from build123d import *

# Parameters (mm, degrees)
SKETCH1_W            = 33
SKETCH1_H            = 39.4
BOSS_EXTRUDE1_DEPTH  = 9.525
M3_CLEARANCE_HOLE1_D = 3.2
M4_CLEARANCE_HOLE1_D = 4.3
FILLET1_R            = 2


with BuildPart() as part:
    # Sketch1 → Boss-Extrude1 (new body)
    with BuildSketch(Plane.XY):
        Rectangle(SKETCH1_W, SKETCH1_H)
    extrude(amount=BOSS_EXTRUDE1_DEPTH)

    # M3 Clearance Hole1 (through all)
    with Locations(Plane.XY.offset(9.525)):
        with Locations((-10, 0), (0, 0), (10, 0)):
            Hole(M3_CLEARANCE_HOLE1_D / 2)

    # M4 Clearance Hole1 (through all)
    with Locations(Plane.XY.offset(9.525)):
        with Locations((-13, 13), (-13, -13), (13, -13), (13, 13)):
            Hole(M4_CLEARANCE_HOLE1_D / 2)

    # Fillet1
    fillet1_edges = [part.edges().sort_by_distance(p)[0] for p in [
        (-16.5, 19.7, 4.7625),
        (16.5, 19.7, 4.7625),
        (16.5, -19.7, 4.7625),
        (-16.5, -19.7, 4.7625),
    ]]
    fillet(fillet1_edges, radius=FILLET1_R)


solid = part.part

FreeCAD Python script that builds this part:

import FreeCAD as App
import Part
import Sketcher

V = App.Vector
Q = App.Units.Quantity


def edges_at(feature, points):
    """Names of the edges that pass closest to the given points."""
    edges = feature.Shape.Edges
    near = lambda p: min(range(len(edges)), key=lambda i: edges[i].distToShape(Part.Vertex(*p))[0])
    return sorted({f"Edge{near(p) + 1}" for p in points})

doc = App.newDocument("Part")
body = doc.addObject("PartDesign::Body", "Body")

sketch1 = body.newObject("Sketcher::SketchObject", "Sketch")
sketch1.AttachmentSupport = (doc.getObject("XY_Plane"), [""])
sketch1.MapMode = "FlatFace"
sketch1.addGeometry([
    Part.LineSegment(V(-16.5, 19.7, 0), V(-16.5, -19.7, 0)),
    Part.LineSegment(V(-16.5, -19.7, 0), V(16.5, -19.7, 0)),
    Part.LineSegment(V(16.5, -19.7, 0), V(16.5, 19.7, 0)),
    Part.LineSegment(V(16.5, 19.7, 0), V(-16.5, 19.7, 0)),
], False)
sketch1.addConstraint([
    Sketcher.Constraint("Coincident", 0, 2, 1, 1),
    Sketcher.Constraint("Coincident", 1, 2, 2, 1),
    Sketcher.Constraint("Coincident", 2, 2, 3, 1),
    Sketcher.Constraint("Coincident", 3, 2, 0, 1),
    Sketcher.Constraint("Vertical", 0),
    Sketcher.Constraint("Horizontal", 1),
    Sketcher.Constraint("Vertical", 2),
    Sketcher.Constraint("Horizontal", 3),
    Sketcher.Constraint("Symmetric", 0, 2, 2, 2, -1, 1),
    Sketcher.Constraint("DistanceX", 1, 1, 1, 2, Q("33 mm")),
    Sketcher.Constraint("DistanceY", 0, 2, 0, 1, Q("39.4 mm")),
])
pad1 = body.newObject("PartDesign::Pad", "Pad")
pad1.Profile = sketch1
pad1.Length = 9.525

sketch2 = body.newObject("Sketcher::SketchObject", "Sketch001")
sketch2.AttachmentSupport = (doc.getObject("XY_Plane"), [""])
sketch2.MapMode = "FlatFace"
sketch2.AttachmentOffset = App.Placement(V(0, 0, 9.525), App.Rotation())
sketch2.addGeometry([
    Part.Circle(V(-10, 0, 0), V(0, 0, 1), 1.6),
    Part.Circle(V(0, 0, 0), V(0, 0, 1), 1.6),
    Part.Circle(V(10, 0, 0), V(0, 0, 1), 1.6),
], False)
sketch2.addConstraint([
    Sketcher.Constraint("Coincident", 1, 3, -1, 1),
    Sketcher.Constraint("Equal", 0, 1),
    Sketcher.Constraint("Equal", 1, 2),
    Sketcher.Constraint("Symmetric", 0, 3, 2, 3, -1, 1),
    Sketcher.Constraint("PointOnObject", 0, 3, -1),
    Sketcher.Constraint("Diameter", 0, Q("3.2 mm")),
    Sketcher.Constraint("DistanceX", 0, 3, -1, 1, Q("10 mm")),
])
doc.recompute()
hole = body.newObject("PartDesign::Hole", "Hole")
hole.Profile = sketch2
hole.ThreadType = "None"
hole.Diameter = 3.2
hole.DepthType = "ThroughAll"

sketch3 = body.newObject("Sketcher::SketchObject", "Sketch002")
sketch3.AttachmentSupport = (doc.getObject("XY_Plane"), [""])
sketch3.MapMode = "FlatFace"
sketch3.AttachmentOffset = App.Placement(V(0, 0, 9.525), App.Rotation())
sketch3.addGeometry([
    Part.Circle(V(-13, 13, 0), V(0, 0, 1), 2.15),
    Part.Circle(V(-13, -13, 0), V(0, 0, 1), 2.15),
    Part.Circle(V(13, -13, 0), V(0, 0, 1), 2.15),
    Part.Circle(V(13, 13, 0), V(0, 0, 1), 2.15),
], False)
sketch3.addConstraint([
    Sketcher.Constraint("Equal", 0, 1),
    Sketcher.Constraint("Equal", 1, 2),
    Sketcher.Constraint("Equal", 2, 3),
    Sketcher.Constraint("Symmetric", 0, 3, 2, 3, -1, 1),
    Sketcher.Constraint("Symmetric", 1, 3, 3, 3, -1, 1),
    Sketcher.Constraint("Symmetric", 1, 3, 2, 3, -2),
    Sketcher.Constraint("Diameter", 0, Q("4.3 mm")),
    Sketcher.Constraint("DistanceX", 0, 3, -1, 1, Q("13 mm")),
    Sketcher.Constraint("DistanceY", -1, 1, 0, 3, Q("13 mm")),
])
doc.recompute()
hole2 = body.newObject("PartDesign::Hole", "Hole001")
hole2.Profile = sketch3
hole2.ThreadType = "None"
hole2.Diameter = 4.3
hole2.DepthType = "ThroughAll"
doc.recompute()

fillet = body.newObject("PartDesign::Fillet", "Fillet")
fillet.Base = (hole2, edges_at(hole2, [
    (-16.5, 19.7, 4.763),
    (16.5, 19.7, 4.763),
    (16.5, -19.7, 4.763),
    (-16.5, -19.7, 4.763),
]))
fillet.Radius = 2

doc.recompute()
